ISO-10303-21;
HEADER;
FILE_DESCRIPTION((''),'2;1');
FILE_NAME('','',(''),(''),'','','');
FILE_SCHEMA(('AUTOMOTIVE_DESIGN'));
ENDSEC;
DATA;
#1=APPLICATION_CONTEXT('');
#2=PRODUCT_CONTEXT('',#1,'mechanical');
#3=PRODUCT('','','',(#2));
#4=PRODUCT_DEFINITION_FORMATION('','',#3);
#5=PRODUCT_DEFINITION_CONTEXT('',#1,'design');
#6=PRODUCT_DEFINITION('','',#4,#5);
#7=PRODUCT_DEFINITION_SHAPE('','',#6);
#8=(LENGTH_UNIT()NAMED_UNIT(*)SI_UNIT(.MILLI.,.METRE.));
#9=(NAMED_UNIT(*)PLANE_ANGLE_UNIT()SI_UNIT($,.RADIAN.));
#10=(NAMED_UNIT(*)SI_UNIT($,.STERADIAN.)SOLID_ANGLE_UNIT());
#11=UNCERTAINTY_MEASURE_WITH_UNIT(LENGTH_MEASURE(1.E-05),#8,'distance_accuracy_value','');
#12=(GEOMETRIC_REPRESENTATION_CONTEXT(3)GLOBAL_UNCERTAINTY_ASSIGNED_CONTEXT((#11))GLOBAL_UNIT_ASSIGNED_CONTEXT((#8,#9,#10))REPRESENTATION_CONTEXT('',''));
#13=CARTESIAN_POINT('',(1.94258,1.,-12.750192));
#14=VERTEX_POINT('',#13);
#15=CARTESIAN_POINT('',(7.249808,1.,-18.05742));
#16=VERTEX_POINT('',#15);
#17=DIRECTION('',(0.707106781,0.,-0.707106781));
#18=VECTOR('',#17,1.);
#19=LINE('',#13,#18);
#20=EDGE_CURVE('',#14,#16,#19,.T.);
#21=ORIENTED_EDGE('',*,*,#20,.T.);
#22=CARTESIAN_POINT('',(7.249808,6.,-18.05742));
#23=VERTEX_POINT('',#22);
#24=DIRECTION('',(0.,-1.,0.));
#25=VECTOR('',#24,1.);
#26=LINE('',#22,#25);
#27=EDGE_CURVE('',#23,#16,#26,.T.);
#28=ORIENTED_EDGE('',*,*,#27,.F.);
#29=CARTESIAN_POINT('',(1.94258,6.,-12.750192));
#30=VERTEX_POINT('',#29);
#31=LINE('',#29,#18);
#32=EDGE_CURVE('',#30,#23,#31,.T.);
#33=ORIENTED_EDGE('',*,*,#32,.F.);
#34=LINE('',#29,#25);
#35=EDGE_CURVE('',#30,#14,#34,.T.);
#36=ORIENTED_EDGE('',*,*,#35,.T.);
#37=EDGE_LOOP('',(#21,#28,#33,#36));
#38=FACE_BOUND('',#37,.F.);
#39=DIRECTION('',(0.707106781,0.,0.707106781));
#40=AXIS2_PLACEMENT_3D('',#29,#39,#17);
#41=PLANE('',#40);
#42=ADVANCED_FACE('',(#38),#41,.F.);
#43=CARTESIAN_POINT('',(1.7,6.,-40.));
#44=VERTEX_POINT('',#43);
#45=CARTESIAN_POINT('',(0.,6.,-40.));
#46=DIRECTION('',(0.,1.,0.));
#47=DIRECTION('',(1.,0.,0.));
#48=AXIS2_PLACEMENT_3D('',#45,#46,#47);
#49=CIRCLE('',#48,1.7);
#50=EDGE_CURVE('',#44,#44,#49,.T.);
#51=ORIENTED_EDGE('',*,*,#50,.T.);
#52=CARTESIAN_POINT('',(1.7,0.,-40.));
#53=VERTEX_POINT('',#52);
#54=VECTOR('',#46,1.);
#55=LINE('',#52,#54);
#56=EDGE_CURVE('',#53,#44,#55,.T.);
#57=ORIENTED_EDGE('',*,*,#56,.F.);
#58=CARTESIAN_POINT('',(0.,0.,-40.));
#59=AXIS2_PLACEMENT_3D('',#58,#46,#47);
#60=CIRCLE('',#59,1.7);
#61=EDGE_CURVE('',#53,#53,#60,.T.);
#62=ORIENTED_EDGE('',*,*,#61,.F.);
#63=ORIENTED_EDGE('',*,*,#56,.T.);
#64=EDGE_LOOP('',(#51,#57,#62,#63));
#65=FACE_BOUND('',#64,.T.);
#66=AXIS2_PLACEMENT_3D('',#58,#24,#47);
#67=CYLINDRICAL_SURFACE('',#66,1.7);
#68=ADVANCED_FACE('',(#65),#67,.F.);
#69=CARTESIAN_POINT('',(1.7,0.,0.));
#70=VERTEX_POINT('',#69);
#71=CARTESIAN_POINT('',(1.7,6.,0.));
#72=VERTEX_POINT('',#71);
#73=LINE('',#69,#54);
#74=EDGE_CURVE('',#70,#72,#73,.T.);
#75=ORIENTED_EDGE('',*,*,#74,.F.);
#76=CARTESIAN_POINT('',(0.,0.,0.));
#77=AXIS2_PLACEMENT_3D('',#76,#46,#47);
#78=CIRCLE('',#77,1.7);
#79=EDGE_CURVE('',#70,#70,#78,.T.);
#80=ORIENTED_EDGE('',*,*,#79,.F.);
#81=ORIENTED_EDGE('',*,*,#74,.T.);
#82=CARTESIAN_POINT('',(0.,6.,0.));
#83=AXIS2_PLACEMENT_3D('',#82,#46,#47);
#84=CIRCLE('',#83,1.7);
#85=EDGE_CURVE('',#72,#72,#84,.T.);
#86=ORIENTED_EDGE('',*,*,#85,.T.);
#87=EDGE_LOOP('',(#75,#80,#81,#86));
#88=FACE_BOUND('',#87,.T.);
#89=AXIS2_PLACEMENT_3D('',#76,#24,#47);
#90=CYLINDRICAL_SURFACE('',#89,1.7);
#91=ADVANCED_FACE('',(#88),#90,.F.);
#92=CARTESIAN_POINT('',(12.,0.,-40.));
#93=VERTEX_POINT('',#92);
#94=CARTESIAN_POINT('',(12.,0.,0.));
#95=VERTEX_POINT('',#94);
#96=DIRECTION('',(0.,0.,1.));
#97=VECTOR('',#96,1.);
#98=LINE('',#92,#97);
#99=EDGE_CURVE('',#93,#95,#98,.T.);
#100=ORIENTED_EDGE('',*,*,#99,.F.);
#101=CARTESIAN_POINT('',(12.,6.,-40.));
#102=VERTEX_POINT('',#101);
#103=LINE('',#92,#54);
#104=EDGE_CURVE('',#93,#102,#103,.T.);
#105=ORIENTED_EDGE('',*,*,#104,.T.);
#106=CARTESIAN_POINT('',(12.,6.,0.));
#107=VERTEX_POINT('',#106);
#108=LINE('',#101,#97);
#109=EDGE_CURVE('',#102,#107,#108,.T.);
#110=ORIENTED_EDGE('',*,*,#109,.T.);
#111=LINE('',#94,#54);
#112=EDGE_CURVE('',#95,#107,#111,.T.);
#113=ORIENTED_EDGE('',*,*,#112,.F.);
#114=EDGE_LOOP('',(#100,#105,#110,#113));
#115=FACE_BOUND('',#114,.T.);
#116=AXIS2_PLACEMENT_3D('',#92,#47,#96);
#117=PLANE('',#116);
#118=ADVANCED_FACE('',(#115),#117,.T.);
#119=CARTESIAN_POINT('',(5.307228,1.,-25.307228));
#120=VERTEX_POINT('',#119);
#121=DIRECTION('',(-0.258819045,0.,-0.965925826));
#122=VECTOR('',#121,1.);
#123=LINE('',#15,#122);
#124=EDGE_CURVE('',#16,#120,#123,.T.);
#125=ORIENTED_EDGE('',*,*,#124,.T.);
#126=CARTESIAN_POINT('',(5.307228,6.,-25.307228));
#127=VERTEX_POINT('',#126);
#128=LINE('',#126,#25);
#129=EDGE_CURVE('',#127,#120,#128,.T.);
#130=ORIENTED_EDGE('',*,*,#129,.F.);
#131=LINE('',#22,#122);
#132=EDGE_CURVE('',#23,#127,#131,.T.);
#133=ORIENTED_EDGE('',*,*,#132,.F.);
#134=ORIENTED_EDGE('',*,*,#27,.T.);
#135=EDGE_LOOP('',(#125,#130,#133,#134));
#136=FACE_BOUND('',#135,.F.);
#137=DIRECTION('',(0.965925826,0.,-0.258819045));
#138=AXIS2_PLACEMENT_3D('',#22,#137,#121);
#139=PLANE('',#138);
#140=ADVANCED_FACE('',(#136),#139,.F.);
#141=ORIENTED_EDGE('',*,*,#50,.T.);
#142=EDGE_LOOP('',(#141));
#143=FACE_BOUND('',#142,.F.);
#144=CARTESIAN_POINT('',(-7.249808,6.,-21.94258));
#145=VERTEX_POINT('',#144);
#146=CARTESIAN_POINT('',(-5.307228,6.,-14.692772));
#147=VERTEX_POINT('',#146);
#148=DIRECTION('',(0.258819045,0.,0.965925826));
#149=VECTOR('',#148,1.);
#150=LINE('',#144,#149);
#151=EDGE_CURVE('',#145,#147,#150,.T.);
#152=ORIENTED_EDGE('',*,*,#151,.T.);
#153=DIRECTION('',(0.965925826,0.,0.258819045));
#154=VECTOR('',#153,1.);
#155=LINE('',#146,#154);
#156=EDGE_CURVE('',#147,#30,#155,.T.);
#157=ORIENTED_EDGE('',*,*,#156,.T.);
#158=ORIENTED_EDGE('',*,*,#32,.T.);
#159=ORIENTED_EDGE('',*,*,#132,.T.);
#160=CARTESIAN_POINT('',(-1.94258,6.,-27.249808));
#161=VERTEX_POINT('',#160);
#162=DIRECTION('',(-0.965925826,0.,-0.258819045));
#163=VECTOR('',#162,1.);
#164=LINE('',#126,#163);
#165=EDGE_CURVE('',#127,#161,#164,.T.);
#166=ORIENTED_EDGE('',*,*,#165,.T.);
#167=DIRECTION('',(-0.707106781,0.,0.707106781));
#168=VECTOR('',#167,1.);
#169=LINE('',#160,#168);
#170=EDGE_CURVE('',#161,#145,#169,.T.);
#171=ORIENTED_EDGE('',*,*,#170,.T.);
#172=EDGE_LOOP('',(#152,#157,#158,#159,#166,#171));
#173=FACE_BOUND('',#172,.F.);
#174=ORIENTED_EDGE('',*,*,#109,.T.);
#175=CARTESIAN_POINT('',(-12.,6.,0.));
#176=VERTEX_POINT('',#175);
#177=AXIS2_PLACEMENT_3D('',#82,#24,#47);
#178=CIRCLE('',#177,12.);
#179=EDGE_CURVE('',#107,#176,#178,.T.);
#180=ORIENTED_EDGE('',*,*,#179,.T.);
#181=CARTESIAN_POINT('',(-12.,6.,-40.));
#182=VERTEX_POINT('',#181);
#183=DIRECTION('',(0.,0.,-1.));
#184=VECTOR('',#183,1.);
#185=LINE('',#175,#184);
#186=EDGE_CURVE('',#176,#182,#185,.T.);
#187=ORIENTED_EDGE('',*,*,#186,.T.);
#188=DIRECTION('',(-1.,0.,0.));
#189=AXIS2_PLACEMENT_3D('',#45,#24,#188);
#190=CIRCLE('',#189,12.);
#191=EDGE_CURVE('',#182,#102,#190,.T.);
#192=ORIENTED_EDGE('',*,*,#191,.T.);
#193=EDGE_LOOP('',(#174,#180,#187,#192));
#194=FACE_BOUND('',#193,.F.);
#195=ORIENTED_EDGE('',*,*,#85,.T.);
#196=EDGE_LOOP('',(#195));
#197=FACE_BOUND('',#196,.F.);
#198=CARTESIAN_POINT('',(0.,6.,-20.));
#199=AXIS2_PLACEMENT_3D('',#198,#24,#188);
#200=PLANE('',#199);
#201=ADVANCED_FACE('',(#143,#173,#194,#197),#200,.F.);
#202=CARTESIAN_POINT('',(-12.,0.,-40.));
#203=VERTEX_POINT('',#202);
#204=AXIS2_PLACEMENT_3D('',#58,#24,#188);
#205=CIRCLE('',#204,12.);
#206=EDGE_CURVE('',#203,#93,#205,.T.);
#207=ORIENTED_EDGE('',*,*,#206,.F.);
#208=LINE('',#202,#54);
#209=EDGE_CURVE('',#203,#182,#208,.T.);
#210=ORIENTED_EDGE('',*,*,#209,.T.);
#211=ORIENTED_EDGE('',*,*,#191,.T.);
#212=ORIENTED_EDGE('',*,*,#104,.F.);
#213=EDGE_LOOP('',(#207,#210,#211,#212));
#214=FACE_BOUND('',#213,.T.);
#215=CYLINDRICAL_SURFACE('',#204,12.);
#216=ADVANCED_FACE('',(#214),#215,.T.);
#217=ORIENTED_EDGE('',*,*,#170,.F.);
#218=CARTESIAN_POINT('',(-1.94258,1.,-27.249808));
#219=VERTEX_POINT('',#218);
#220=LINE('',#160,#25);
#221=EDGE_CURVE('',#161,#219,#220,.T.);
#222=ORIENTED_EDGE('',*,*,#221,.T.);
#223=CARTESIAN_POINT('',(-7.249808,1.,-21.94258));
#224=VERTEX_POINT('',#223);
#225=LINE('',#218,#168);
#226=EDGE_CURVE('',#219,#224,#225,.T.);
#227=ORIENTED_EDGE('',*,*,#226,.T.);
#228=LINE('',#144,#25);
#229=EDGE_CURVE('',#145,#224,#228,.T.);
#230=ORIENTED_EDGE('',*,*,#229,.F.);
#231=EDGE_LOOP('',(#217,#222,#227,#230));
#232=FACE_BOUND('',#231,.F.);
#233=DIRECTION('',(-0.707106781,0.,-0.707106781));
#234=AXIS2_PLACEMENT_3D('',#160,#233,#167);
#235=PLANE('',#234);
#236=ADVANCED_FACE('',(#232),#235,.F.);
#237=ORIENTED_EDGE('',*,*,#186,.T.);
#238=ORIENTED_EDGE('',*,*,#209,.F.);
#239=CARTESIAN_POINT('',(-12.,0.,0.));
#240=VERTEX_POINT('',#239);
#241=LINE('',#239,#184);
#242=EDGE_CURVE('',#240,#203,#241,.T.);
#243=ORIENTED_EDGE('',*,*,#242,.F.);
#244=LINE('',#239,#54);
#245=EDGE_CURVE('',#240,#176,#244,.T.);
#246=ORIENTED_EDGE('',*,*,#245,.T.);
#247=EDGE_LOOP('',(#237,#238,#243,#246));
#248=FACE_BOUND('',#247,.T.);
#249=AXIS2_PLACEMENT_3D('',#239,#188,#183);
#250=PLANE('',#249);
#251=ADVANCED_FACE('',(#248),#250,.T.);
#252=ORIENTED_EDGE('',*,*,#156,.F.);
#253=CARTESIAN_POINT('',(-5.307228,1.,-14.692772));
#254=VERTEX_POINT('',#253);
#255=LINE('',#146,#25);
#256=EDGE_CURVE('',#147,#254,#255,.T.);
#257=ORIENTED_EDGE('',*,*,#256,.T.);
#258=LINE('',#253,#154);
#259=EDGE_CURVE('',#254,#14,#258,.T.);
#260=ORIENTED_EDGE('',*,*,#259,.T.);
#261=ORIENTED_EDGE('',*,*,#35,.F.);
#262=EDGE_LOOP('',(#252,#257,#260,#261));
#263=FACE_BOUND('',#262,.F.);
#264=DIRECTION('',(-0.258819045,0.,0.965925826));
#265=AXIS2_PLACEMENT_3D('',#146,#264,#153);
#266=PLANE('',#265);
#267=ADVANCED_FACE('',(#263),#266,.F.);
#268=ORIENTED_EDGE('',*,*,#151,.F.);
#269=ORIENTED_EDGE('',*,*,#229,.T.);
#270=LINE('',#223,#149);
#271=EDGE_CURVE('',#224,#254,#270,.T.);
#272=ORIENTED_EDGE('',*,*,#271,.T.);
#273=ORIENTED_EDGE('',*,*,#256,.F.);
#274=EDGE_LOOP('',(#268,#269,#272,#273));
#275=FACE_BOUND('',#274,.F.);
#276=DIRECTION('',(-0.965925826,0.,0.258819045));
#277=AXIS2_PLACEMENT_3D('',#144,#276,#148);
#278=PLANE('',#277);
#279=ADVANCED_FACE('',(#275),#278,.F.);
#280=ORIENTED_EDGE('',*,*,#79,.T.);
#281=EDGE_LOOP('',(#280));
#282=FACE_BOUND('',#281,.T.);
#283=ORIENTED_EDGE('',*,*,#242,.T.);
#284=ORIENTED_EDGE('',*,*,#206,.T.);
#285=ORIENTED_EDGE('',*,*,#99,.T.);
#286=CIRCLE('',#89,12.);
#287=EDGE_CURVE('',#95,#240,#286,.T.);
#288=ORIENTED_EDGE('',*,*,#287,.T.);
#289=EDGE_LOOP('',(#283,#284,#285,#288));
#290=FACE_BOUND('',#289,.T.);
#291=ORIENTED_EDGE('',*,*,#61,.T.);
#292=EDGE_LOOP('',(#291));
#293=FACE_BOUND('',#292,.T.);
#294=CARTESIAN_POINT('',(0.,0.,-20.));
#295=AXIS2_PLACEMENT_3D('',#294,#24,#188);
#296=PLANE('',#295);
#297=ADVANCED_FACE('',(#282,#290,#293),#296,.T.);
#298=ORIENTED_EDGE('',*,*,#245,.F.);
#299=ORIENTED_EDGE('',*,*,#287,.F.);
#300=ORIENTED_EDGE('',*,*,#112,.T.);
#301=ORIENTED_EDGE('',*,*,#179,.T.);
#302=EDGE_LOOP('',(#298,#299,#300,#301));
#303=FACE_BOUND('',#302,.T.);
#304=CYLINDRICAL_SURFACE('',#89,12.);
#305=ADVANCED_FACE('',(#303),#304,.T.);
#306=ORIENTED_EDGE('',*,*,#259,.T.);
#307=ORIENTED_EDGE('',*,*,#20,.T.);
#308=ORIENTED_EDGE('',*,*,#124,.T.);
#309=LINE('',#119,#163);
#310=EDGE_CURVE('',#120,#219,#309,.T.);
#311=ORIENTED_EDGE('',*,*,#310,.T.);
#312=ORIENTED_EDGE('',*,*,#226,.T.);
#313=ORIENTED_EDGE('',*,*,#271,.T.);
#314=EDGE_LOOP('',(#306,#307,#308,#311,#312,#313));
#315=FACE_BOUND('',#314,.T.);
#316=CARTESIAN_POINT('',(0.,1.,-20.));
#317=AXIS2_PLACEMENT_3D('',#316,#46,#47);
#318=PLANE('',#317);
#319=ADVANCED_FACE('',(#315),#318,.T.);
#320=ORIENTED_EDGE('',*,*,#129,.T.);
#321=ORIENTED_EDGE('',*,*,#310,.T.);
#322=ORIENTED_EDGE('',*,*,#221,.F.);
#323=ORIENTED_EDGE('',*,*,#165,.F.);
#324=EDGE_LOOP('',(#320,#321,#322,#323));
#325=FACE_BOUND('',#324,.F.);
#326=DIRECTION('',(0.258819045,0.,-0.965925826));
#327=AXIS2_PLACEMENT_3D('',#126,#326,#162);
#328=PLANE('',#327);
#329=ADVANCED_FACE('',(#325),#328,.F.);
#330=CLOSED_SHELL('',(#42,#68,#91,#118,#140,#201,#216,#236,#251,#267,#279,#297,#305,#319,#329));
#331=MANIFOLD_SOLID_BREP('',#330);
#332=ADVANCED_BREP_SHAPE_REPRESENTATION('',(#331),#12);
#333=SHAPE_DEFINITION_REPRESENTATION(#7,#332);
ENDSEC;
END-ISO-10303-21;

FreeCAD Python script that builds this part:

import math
import FreeCAD as App
import Part
import Sketcher

V = App.Vector
Q = App.Units.Quantity

doc = App.newDocument("Part")
params = doc.addObject("Spreadsheet::Sheet", "Params")
for row, (alias, value) in enumerate([
    ("sketch1_radius", "12 mm"),
    ("sketch1_diameter", "3.4 mm"),
    ("sketch1_height", "40 mm"),
    ("pad1_length", "6 mm"),
    ("pocket1_length", "5 mm"),
], start=1):
    params.set(f"A{row}", alias)
    params.set(f"B{row}", "=" + value)
    params.setAlias(f"B{row}", alias)

body = doc.addObject("PartDesign::Body", "Body")

# Sketch on XZ plane
sketch1 = body.newObject("Sketcher::SketchObject", "Sketch")
sketch1.AttachmentSupport = (doc.getObject("XZ_Plane"), [""])
sketch1.MapMode = "FlatFace"
sketch1.addGeometry(Part.LineSegment(V(-12, -40, 0), V(-12, 0, 0)), False)
sketch1.addGeometry(Part.ArcOfCircle(Part.Circle(V(0, 0, 0), V(0, 0, 1), 12), math.radians(0), math.radians(180)), False)
sketch1.addGeometry(Part.LineSegment(V(12, 0, 0), V(12, -40, 0)), False)
sketch1.addGeometry(Part.ArcOfCircle(Part.Circle(V(0, -40, 0), V(0, 0, 1), 12), math.radians(180), math.radians(360)), False)
sketch1.addGeometry(Part.Circle(V(0, 0, 0), V(0, 0, 1), 1.7), False)
sketch1.addGeometry(Part.Circle(V(0, -40, 0), V(0, 0, 1), 1.7), False)
sketch1.addConstraint(Sketcher.Constraint("Tangent", 0, 2, 1, 2))
sketch1.addConstraint(Sketcher.Constraint("Tangent", 1, 1, 2, 1))
sketch1.addConstraint(Sketcher.Constraint("Tangent", 2, 2, 3, 2))
sketch1.addConstraint(Sketcher.Constraint("Tangent", 3, 1, 0, 1))
sketch1.addConstraint(Sketcher.Constraint("Vertical", 0))
sketch1.addConstraint(Sketcher.Constraint("Vertical", 2))
sketch1.addConstraint(Sketcher.Constraint("Coincident", 1, 3, -1, 1))
sketch1.addConstraint(Sketcher.Constraint("Coincident", 4, 3, -1, 1))
sketch1.addConstraint(Sketcher.Constraint("Coincident", 5, 3, 3, 3))
sketch1.addConstraint(Sketcher.Constraint("Equal", 4, 5))
sketch1.addConstraint(Sketcher.Constraint("Radius", 1, 12.0))
sketch1.addConstraint(Sketcher.Constraint("Diameter", 4, 3.4))
sketch1.addConstraint(Sketcher.Constraint("DistanceY", 0, 1, 0, 2, 40.0))
sketch1.setExpression("Constraints[10]", "Params.sketch1_radius")
sketch1.setExpression("Constraints[11]", "Params.sketch1_diameter")
sketch1.setExpression("Constraints[12]", "Params.sketch1_height")
pad1 = body.newObject("PartDesign::Pad", "Pad")
pad1.Profile = sketch1
pad1.setExpression("Length", "Params.pad1_length")
pad1.Reversed = True

# Sketch on XZ plane
sketch2 = body.newObject("Sketcher::SketchObject", "Sketch001")
sketch2.AttachmentSupport = (doc.getObject("XZ_Plane"), [""])
sketch2.MapMode = "FlatFace"
sketch2.AttachmentOffset = App.Placement(V(0, 0, -6), App.Rotation())
sketch2.addGeometry(Part.LineSegment(V(1.94258, -12.750192, 0), V(7.249808, -18.05742, 0)), False)
sketch2.addGeometry(Part.LineSegment(V(7.249808, -18.05742, 0), V(5.307228, -25.307228, 0)), False)
sketch2.addGeometry(Part.LineSegment(V(5.307228, -25.307228, 0), V(-1.94258, -27.249808, 0)), False)
sketch2.addGeometry(Part.LineSegment(V(-1.94258, -27.249808, 0), V(-7.249808, -21.94258, 0)), False)
sketch2.addGeometry(Part.LineSegment(V(-7.249808, -21.94258, 0), V(-5.307228, -14.692772, 0)), False)
sketch2.addGeometry(Part.LineSegment(V(-5.307228, -14.692772, 0), V(1.94258, -12.750192, 0)), False)
sketch2.addConstraint(Sketcher.Constraint("Coincident", 0, 2, 1, 1))
sketch2.addConstraint(Sketcher.Constraint("Coincident", 1, 2, 2, 1))
sketch2.addConstraint(Sketcher.Constraint("Coincident", 2, 2, 3, 1))
sketch2.addConstraint(Sketcher.Constraint("Coincident", 3, 2, 4, 1))
sketch2.addConstraint(Sketcher.Constraint("Coincident", 4, 2, 5, 1))
sketch2.addConstraint(Sketcher.Constraint("Coincident", 5, 2, 0, 1))
sketch2.addConstraint(Sketcher.Constraint("Parallel", 0, 3))
sketch2.addConstraint(Sketcher.Constraint("Parallel", 1, 4))
sketch2.addConstraint(Sketcher.Constraint("Parallel", 2, 5))
sketch2.addConstraint(Sketcher.Constraint("Equal", 0, 1))
sketch2.addConstraint(Sketcher.Constraint("Equal", 1, 2))
sketch2.addConstraint(Sketcher.Constraint("Equal", 2, 3))
sketch2.addConstraint(Sketcher.Constraint("Angle", 0, Q("-45 deg")))
sketch2.addConstraint(Sketcher.Constraint("Angle", 1, Q("-105 deg")))
sketch2.addConstraint(Sketcher.Constraint("Angle", 2, Q("-165 deg")))
sketch2.addConstraint(Sketcher.Constraint("DistanceY", 0, 2, -1, 1, 18.05742))
sketch2.addConstraint(Sketcher.Constraint("DistanceX", 2, 2, -1, 1, 1.94258))
sketch2.addConstraint(Sketcher.Constraint("DistanceY", 3, 2, -1, 1, 21.94258))
pocket1 = body.newObject("PartDesign::Pocket", "Pocket")
pocket1.Profile = sketch2
pocket1.setExpression("Length", "Params.pocket1_length")
pocket1.Reversed = True

doc.recompute()
